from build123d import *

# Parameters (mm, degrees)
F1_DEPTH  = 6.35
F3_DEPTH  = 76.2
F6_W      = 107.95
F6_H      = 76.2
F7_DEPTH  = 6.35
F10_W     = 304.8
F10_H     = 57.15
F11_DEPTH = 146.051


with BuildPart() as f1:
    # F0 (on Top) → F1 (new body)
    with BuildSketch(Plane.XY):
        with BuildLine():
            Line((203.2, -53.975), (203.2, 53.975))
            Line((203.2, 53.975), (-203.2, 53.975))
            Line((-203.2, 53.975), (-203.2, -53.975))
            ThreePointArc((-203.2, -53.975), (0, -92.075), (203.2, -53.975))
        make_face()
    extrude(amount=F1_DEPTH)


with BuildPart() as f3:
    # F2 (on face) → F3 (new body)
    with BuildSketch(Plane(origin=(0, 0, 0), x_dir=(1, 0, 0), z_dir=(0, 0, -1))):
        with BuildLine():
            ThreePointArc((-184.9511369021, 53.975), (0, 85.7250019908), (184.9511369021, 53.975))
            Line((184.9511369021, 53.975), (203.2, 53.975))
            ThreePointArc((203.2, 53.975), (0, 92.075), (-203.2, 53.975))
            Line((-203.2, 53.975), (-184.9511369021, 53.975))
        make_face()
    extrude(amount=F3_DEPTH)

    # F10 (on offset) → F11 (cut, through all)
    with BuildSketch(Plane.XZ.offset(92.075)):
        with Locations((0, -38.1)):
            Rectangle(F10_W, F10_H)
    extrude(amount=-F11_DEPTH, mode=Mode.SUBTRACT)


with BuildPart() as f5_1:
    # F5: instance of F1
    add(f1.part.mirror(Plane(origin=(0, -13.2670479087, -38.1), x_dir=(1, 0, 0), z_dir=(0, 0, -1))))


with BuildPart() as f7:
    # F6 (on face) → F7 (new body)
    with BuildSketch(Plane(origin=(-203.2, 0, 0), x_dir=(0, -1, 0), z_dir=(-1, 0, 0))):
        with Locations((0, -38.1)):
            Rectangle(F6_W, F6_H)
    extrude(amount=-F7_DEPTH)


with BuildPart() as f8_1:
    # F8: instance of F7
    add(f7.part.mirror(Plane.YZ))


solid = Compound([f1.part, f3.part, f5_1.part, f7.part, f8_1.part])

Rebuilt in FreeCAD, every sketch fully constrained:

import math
import FreeCAD as App
import Part
import Sketcher

V = App.Vector
Q = App.Units.Quantity


def add_polygon(sketch, points):
    """Adds a closed chain of lines whose ends are joined by coincident constraints."""
    first, n = sketch.GeometryCount, len(points)
    for a, b in zip(points, points[1:] + points[:1]):
        sketch.addGeometry(Part.LineSegment(App.Vector(*a, 0), App.Vector(*b, 0)), False)
    for i in range(n):
        sketch.addConstraint(Sketcher.Constraint("Coincident", first + i, 2, first + (i + 1) % n, 1))

doc = App.newDocument("Part")
body = doc.addObject("PartDesign::Body", "Body")

sketch1 = body.newObject("Sketcher::SketchObject", "Sketch")
sketch1.AttachmentSupport = (doc.getObject("XY_Plane"), [""])
sketch1.MapMode = "FlatFace"
sketch1.addGeometry([
    Part.LineSegment(V(203.2, -53.975, 0), V(203.2, 53.975, 0)),
    Part.LineSegment(V(203.2, 53.975, 0), V(-203.2, 53.975, 0)),
    Part.LineSegment(V(-203.2, 53.975, 0), V(-203.2, -53.975, 0)),
    Part.ArcOfCircle(Part.Circle(V(0, 468.841667, 0), V(0, 0, 1), 560.916667), math.radians(-111.239311), math.radians(-68.760689)),
], False)
sketch1.addConstraint([
    Sketcher.Constraint("Coincident", 0, 2, 1, 1),
    Sketcher.Constraint("Coincident", 1, 2, 2, 1),
    Sketcher.Constraint("Coincident", 2, 2, 3, 1),
    Sketcher.Constraint("Coincident", 3, 2, 0, 1),
    Sketcher.Constraint("Vertical", 0),
    Sketcher.Constraint("Horizontal", 1),
    Sketcher.Constraint("Vertical", 2),
    Sketcher.Constraint("Symmetric", 0, 2, 2, 2, -1, 1),
    Sketcher.Constraint("PointOnObject", 3, 3, -2),
    Sketcher.Constraint("DistanceX", 1, 2, 1, 1, Q("16 in")),
    Sketcher.Constraint("DistanceY", 0, 1, 0, 2, Q("4.25 in")),
    Sketcher.Constraint("Radius", 3, 560.916667),
])
pad1 = body.newObject("PartDesign::Pad", "Pad")
pad1.Profile = sketch1
pad1.Length = Q("0.25 in")
body2 = doc.addObject("PartDesign::Body", "Body001")

sketch2 = body2.newObject("Sketcher::SketchObject", "Sketch001")
sketch2.AttachmentSupport = (doc.getObject("XY_Plane001"), [""])
sketch2.MapMode = "FlatFace"
sketch2.addGeometry([
    Part.ArcOfCircle(Part.Circle(V(0, 468.841667, 0), V(0, 0, 1), 554.566669), math.radians(-109.481695), math.radians(-70.518305)),
    Part.LineSegment(V(184.951137, -53.975, 0), V(203.2, -53.975, 0)),
    Part.ArcOfCircle(Part.Circle(V(0, 468.841667, 0), V(0, 0, 1), 560.916667), math.radians(-111.239311), math.radians(-68.760689)),
    Part.LineSegment(V(-203.2, -53.975, 0), V(-184.951137, -53.975, 0)),
], False)
sketch2.addConstraint([
    Sketcher.Constraint("Coincident", 0, 2, 1, 1),
    Sketcher.Constraint("Coincident", 1, 2, 2, 2),
    Sketcher.Constraint("Coincident", 2, 1, 3, 1),
    Sketcher.Constraint("Coincident", 3, 2, 0, 1),
    Sketcher.Constraint("Horizontal", 1),
    Sketcher.Constraint("Horizontal", 3),
    Sketcher.Constraint("Coincident", 2, 3, 0, 3),
    Sketcher.Constraint("PointOnObject", 0, 3, -2),
    Sketcher.Constraint("Equal", 1, 3),
    Sketcher.Constraint("DistanceX", -1, 1, 1, 2, Q("8 in")),
    Sketcher.Constraint("DistanceY", 0, 2, -1, 1, Q("2.125 in")),
    Sketcher.Constraint("Radius", 0, 554.566669),
    Sketcher.Constraint("Radius", 2, 560.916667),
])
pad2 = body2.newObject("PartDesign::Pad", "Pad001")
pad2.Profile = sketch2
pad2.Length = Q("3 in")
pad2.Reversed = True

sketch3 = body2.newObject("Sketcher::SketchObject", "Sketch002")
sketch3.AttachmentSupport = (doc.getObject("XZ_Plane001"), [""])
sketch3.MapMode = "FlatFace"
sketch3.AttachmentOffset = App.Placement(V(0, 0, 3.625 * 25.4), App.Rotation())
add_polygon(sketch3, [(-152.4, -9.525), (-152.4, -66.675), (152.4, -66.675), (152.4, -9.525)])
sketch3.addConstraint([
    Sketcher.Constraint("Vertical", 0),
    Sketcher.Constraint("Horizontal", 1),
    Sketcher.Constraint("Vertical", 2),
    Sketcher.Constraint("Horizontal", 3),
    Sketcher.Constraint("DistanceX", 1, 1, 1, 2, Q("12 in")),
    Sketcher.Constraint("DistanceX", 0, 2, -1, 1, Q("6 in")),
    Sketcher.Constraint("DistanceY", 0, 2, 0, 1, Q("2.25 in")),
    Sketcher.Constraint("DistanceY", 0, 2, -1, 1, Q("2.625 in")),
])
pocket1 = body2.newObject("PartDesign::Pocket", "Pocket")
pocket1.Profile = sketch3
pocket1.Type = "ThroughAll"
body3 = doc.addObject("PartDesign::Body", "Body002")
doc.recompute()

mirroring = doc.addObject("Part::Mirroring", "Mirroring")
mirroring.Source = body
mirroring.Base = V(0, -13.267048, -38.1)
mirroring.Normal = V(0, 0, -1)
body3.BaseFeature = mirroring
doc.recompute()
body4 = doc.addObject("PartDesign::Body", "Body003")

sketch4 = body4.newObject("Sketcher::SketchObject", "Sketch003")
sketch4.AttachmentSupport = (doc.getObject("YZ_Plane003"), [""])
sketch4.MapMode = "FlatFace"
sketch4.AttachmentOffset = App.Placement(V(0, 0, -8 * 25.4), App.Rotation())
add_polygon(sketch4, [(53.975, 0), (53.975, -76.2), (-53.975, -76.2), (-53.975, 0)])
sketch4.addConstraint([
    Sketcher.Constraint("Vertical", 0),
    Sketcher.Constraint("Horizontal", 1),
    Sketcher.Constraint("Vertical", 2),
    Sketcher.Constraint("Horizontal", 3),
    Sketcher.Constraint("Symmetric", 2, 2, 3, 2, -1, 1),
    Sketcher.Constraint("DistanceY", 0, 2, 0, 1, Q("3 in")),
    Sketcher.Constraint("DistanceX", 1, 2, 1, 1, Q("4.25 in")),
])
pad3 = body4.newObject("PartDesign::Pad", "Pad002")
pad3.Profile = sketch4
pad3.Length = Q("0.25 in")
body5 = doc.addObject("PartDesign::Body", "Body004")
doc.recompute()

mirroring2 = doc.addObject("Part::Mirroring", "Mirroring001")
mirroring2.Source = body4
mirroring2.Base = V(0, 0, 0)
mirroring2.Normal = V(1, 0, 0)
body5.BaseFeature = mirroring2
doc.recompute()
mirroring.Visibility = False
mirroring2.Visibility = False

doc.recompute()
